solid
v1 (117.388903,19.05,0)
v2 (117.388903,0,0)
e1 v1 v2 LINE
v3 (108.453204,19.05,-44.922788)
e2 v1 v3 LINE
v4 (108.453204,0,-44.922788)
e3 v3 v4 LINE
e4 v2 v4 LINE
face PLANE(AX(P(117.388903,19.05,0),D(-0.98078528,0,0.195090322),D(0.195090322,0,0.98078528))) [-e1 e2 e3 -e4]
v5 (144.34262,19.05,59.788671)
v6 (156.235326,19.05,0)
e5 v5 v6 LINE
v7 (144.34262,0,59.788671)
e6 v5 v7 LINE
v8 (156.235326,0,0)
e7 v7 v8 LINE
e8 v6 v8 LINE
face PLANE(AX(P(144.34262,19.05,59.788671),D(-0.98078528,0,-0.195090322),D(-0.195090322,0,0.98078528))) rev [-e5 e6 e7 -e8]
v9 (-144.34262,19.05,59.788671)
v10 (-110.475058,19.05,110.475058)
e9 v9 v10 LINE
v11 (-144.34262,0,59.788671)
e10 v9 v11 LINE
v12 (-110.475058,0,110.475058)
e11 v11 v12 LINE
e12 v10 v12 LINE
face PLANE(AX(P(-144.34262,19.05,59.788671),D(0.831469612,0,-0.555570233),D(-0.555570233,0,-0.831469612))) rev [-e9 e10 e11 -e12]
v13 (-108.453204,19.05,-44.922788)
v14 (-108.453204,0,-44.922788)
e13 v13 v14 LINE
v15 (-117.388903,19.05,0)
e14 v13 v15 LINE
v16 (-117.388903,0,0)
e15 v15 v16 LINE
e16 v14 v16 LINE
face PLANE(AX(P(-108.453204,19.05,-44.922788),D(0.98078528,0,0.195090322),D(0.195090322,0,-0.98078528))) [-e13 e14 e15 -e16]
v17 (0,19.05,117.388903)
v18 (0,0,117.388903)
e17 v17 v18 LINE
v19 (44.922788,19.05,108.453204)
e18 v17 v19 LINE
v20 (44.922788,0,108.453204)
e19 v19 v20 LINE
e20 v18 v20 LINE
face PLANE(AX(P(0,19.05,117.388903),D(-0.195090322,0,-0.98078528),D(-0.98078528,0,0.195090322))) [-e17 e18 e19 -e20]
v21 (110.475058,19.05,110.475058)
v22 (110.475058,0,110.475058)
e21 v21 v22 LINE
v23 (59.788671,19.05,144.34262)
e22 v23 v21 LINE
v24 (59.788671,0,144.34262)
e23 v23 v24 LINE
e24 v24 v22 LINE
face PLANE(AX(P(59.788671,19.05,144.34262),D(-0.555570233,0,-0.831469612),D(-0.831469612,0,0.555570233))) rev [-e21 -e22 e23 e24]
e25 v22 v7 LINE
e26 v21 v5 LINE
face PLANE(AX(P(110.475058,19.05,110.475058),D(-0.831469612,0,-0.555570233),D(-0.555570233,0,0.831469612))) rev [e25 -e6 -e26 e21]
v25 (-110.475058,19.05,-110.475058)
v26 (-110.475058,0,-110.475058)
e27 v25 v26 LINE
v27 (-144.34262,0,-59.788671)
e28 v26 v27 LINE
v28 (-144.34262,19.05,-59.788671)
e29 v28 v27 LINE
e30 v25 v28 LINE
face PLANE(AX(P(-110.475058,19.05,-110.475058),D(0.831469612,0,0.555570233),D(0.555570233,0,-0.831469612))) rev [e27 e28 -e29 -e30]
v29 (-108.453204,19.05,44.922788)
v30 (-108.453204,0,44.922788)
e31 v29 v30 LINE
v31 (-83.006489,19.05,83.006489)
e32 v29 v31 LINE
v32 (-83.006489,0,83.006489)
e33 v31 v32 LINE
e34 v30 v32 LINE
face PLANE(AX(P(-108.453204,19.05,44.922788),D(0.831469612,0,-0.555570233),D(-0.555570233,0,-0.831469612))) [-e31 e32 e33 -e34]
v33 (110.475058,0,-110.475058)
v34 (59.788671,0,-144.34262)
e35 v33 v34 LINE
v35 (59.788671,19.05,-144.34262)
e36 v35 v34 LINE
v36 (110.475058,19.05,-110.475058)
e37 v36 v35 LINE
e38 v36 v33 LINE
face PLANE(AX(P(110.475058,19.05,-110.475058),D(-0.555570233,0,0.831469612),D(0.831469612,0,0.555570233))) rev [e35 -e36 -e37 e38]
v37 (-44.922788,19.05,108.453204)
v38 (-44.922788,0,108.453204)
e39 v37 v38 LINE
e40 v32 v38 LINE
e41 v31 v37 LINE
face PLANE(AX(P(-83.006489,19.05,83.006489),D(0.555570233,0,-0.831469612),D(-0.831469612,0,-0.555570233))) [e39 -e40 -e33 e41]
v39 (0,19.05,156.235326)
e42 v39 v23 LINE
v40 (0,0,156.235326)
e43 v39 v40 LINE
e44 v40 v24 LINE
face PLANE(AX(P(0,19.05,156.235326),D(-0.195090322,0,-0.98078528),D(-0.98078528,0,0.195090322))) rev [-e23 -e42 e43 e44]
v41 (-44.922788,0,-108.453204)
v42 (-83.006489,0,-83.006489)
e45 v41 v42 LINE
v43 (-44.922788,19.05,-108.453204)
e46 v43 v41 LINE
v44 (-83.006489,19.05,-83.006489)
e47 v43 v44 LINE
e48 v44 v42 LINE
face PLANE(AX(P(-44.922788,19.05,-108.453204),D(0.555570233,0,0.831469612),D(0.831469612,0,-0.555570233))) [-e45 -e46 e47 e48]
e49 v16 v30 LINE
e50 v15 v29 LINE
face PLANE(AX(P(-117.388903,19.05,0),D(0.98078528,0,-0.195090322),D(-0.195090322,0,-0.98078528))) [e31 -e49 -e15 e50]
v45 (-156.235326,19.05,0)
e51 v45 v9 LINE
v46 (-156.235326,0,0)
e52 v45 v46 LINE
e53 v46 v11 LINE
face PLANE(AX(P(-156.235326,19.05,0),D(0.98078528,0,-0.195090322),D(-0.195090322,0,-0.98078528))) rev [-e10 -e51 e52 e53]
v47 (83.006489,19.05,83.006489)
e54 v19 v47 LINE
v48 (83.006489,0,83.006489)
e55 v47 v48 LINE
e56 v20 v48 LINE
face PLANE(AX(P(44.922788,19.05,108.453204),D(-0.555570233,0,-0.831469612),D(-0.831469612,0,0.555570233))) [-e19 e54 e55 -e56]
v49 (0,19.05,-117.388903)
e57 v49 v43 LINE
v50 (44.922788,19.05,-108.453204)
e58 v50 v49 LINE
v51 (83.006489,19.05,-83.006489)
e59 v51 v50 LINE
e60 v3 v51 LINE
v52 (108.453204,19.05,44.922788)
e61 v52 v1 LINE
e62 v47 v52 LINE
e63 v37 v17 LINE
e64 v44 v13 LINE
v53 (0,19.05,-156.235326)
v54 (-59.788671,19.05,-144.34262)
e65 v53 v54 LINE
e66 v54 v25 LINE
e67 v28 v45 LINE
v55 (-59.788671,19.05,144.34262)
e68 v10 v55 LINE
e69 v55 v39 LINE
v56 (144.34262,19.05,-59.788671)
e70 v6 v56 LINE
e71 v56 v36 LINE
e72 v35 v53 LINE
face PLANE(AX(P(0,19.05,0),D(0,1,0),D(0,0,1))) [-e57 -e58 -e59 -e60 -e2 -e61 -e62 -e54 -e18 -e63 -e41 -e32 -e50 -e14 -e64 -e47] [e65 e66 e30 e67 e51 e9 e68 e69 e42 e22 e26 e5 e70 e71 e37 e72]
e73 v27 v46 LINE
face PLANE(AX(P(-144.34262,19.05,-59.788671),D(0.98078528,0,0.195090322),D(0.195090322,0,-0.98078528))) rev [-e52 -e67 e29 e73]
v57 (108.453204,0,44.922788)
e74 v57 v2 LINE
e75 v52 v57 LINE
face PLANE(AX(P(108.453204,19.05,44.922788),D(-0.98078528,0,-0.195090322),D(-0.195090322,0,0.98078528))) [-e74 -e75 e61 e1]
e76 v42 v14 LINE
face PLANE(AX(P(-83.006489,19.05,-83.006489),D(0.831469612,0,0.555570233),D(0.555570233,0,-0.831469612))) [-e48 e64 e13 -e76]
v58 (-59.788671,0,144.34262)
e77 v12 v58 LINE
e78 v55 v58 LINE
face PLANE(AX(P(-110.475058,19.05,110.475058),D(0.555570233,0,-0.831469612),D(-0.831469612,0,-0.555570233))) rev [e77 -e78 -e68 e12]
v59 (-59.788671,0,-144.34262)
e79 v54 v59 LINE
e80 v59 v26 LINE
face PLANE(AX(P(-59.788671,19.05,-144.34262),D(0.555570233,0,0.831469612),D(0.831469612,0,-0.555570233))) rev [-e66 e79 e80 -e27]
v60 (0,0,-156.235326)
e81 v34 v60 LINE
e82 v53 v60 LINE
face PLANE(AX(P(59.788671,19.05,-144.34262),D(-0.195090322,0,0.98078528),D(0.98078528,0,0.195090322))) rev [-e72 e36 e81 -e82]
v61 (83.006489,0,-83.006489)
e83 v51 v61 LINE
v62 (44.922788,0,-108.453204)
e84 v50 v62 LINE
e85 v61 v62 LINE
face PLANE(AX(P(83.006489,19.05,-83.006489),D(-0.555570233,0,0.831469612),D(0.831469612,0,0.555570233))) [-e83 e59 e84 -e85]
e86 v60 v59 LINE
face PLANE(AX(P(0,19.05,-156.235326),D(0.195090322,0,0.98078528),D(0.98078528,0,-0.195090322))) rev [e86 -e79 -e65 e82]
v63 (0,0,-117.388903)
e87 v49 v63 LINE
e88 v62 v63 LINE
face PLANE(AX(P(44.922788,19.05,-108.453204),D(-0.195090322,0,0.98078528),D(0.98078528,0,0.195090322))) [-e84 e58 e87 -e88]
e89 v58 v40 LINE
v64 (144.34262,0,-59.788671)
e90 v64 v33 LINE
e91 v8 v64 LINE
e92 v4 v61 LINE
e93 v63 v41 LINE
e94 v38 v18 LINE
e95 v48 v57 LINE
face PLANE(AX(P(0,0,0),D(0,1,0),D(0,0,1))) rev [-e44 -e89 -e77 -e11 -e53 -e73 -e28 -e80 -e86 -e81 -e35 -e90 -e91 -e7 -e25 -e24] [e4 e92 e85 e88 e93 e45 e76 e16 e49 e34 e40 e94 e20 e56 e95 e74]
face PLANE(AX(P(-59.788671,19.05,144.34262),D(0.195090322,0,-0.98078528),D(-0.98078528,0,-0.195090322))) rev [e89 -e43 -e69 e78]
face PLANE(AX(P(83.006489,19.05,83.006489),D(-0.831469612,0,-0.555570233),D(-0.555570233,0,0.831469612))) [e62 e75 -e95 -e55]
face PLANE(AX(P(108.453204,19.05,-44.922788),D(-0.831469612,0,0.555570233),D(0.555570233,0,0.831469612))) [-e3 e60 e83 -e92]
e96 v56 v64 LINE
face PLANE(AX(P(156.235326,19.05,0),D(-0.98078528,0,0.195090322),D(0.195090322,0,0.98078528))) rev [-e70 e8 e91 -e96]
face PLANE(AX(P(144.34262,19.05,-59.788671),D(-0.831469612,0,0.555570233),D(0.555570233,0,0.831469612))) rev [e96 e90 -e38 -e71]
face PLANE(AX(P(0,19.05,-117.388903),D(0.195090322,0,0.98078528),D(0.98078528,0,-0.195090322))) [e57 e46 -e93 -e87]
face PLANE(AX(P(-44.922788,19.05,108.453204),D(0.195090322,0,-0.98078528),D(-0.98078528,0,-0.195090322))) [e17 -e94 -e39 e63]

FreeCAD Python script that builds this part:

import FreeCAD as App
import Part
import Sketcher
from FreeCAD import Vector
Q = App.Units.Quantity


def add_polygon(sketch, points):
    """Adds a closed chain of lines whose ends are joined by coincident constraints."""
    first, n = sketch.GeometryCount, len(points)
    for a, b in zip(points, points[1:] + points[:1]):
        sketch.addGeometry(Part.LineSegment(App.Vector(*a, 0), App.Vector(*b, 0)), False)
    for i in range(n):
        sketch.addConstraint(Sketcher.Constraint("Coincident", first + i, 2, first + (i + 1) % n, 1))

doc = App.newDocument("Part")
body = doc.addObject("PartDesign::Body", "Body")

# Sketch on XZ plane
sketch1 = body.newObject("Sketcher::SketchObject", "Sketch")
sketch1.AttachmentSupport = (doc.getObject("XZ_Plane"), [""])
sketch1.MapMode = "FlatFace"
add_polygon(sketch1, [(156, 0), (144, -60), (110, -110), (60, -144), (0, -156), (-60, -144), (-110, -110), (-144, -60), (-156, 0), (-144, 60), (-110, 110), (-60, 144), (0, 156), (60, 144), (110, 110), (144, 60)])  # lines 0-15
add_polygon(sketch1, [(108, -45), (117, 0), (108, 45), (83, 83), (45, 108), (0, 117), (-45, 108), (-83, 83), (-108, 45), (-117, 0), (-108, -45), (-83, -83), (-45, -108), (0, -117), (45, -108), (83, -83)])  # lines 16-31
sketch1.addConstraint([
    Sketcher.Constraint("Symmetric", 0, 2, 8, 2, -1, 1),
    Sketcher.Constraint("Symmetric", 1, 2, 9, 2, -1, 1),
    Sketcher.Constraint("Symmetric", 2, 2, 10, 2, -1, 1),
    Sketcher.Constraint("Symmetric", 3, 2, 11, 2, -1, 1),
    Sketcher.Constraint("Symmetric", 4, 2, 12, 2, -1, 1),
    Sketcher.Constraint("Symmetric", 5, 2, 13, 2, -1, 1),
    Sketcher.Constraint("Symmetric", 6, 2, 14, 2, -1, 1),
    Sketcher.Constraint("Symmetric", 7, 2, 15, 2, -1, 1),
    Sketcher.Constraint("Symmetric", 16, 2, 24, 2, -1, 1),
    Sketcher.Constraint("Symmetric", 17, 2, 25, 2, -1, 1),
    Sketcher.Constraint("Symmetric", 18, 2, 26, 2, -1, 1),
    Sketcher.Constraint("Symmetric", 19, 2, 27, 2, -1, 1),
    Sketcher.Constraint("Symmetric", 20, 2, 28, 2, -1, 1),
    Sketcher.Constraint("Symmetric", 21, 2, 29, 2, -1, 1),
    Sketcher.Constraint("Symmetric", 22, 2, 30, 2, -1, 1),
    Sketcher.Constraint("Symmetric", 23, 2, 31, 2, -1, 1),
    Sketcher.Constraint("Symmetric", 2, 2, 4, 2, -2),
    Sketcher.Constraint("Symmetric", 1, 2, 5, 2, -2),
    Sketcher.Constraint("Symmetric", 0, 2, 6, 2, -2),
    Sketcher.Constraint("Symmetric", 19, 2, 21, 2, -2),
    Sketcher.Constraint("Symmetric", 18, 2, 22, 2, -2),
    Sketcher.Constraint("Symmetric", 17, 2, 23, 2, -2),
    Sketcher.Constraint("PointOnObject", 3, 2, -2),
    Sketcher.Constraint("PointOnObject", 7, 2, -1),
    Sketcher.Constraint("PointOnObject", 16, 2, -1),
    Sketcher.Constraint("PointOnObject", 20, 2, -2),
    Sketcher.Constraint("Perpendicular", 0, 4),
    Sketcher.Constraint("Perpendicular", 1, 5),
    Sketcher.Constraint("Perpendicular", 12, 16),
    Sketcher.Constraint("Parallel", 14, 18),
    Sketcher.Constraint("Parallel", 13, 19),
    Sketcher.Constraint("Perpendicular", 16, 20),
    Sketcher.Constraint("Equal", 0, 1),
    Sketcher.Constraint("Equal", 1, 2),
    Sketcher.Constraint("Equal", 2, 3),
    Sketcher.Constraint("Equal", 17, 18),
    Sketcher.Constraint("Equal", 18, 19),
    Sketcher.Constraint("Equal", 19, 20),
    Sketcher.Constraint("Distance", 0, Q("2.4 in")),
    Sketcher.Constraint("Angle", 0, Q("-101.25 deg")),
    Sketcher.Constraint("Angle", 1, Q("-123.75 deg")),
    Sketcher.Constraint("DistanceX", 17, 2, 16, 2, Q("8.935698 mm")),
])
pad1 = body.newObject("PartDesign::Pad", "Pad")
pad1.Profile = sketch1
pad1.Length = Q("0.75 in")
pad1.Reversed = True

doc.recompute()
